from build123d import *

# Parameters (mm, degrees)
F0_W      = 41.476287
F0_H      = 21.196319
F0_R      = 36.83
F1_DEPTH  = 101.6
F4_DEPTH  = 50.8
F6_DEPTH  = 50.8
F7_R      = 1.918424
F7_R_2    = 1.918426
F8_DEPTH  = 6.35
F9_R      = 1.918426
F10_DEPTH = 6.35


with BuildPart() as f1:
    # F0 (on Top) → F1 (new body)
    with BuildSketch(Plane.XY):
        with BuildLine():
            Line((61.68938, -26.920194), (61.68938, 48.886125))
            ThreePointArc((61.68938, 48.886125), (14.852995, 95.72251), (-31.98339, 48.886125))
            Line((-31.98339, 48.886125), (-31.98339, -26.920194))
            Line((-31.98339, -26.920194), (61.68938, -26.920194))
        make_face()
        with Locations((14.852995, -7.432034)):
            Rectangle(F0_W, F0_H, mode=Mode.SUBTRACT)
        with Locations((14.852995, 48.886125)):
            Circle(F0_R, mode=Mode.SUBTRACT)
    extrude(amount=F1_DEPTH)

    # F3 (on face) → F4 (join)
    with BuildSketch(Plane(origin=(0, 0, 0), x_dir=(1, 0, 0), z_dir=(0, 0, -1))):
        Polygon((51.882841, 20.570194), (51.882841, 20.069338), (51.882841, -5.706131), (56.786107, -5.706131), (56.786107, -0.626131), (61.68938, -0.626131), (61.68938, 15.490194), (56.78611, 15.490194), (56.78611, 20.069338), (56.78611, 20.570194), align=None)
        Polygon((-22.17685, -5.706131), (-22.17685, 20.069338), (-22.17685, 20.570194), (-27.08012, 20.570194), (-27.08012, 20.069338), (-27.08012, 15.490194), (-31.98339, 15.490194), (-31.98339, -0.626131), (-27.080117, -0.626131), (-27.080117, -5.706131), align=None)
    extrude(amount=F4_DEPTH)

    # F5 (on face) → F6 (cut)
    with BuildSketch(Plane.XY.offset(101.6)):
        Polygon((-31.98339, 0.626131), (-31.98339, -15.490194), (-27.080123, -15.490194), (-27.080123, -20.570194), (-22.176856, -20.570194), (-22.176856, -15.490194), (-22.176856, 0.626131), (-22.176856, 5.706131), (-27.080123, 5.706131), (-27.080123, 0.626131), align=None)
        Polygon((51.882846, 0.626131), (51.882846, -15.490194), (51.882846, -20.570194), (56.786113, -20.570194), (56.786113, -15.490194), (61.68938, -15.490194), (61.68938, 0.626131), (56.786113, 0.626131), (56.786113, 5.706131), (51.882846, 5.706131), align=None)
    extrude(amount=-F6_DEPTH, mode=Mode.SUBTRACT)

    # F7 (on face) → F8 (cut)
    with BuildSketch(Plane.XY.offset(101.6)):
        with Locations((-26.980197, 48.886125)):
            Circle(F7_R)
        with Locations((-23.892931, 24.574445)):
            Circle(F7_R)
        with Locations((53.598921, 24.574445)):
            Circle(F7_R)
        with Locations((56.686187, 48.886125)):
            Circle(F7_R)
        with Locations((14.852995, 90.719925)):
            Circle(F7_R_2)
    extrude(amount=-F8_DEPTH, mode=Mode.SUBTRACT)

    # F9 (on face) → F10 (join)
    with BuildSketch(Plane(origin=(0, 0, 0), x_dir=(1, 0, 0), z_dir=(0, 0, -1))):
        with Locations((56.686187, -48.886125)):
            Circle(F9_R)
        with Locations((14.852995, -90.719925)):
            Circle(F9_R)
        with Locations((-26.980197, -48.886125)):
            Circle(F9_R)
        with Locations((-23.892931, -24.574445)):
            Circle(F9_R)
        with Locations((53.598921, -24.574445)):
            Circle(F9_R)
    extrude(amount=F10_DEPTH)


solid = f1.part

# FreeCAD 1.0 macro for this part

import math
import FreeCAD as App
import Part
import Sketcher
Q = App.Units.Quantity


def add_polygon(sketch, points):
    """Adds a closed chain of lines whose ends are joined by coincident constraints."""
    first, n = sketch.GeometryCount, len(points)
    for a, b in zip(points, points[1:] + points[:1]):
        sketch.addGeometry(Part.LineSegment(App.Vector(*a, 0), App.Vector(*b, 0)), False)
    for i in range(n):
        sketch.addConstraint(Sketcher.Constraint("Coincident", first + i, 2, first + (i + 1) % n, 1))

doc = App.newDocument("Part")
body = doc.addObject("PartDesign::Body", "Body")

# Sketch on XY plane
sketch1 = body.newObject("Sketcher::SketchObject", "Sketch")
sketch1.AttachmentSupport = (doc.getObject("XY_Plane"), [""])
sketch1.MapMode = "FlatFace"
sketch1.addGeometry(Part.LineSegment(App.Vector(62, -27, 0), App.Vector(62, 49, 0)), False)  # 0
sketch1.addGeometry(Part.ArcOfCircle(Part.Circle(App.Vector(15, 49, 0), App.Vector(0, 0, 1), 47), math.radians(0), math.radians(180)), False)  # 1
sketch1.addGeometry(Part.LineSegment(App.Vector(-32, 49, 0), App.Vector(-32, -27, 0)), False)  # 2
sketch1.addGeometry(Part.LineSegment(App.Vector(-32, -27, 0), App.Vector(62, -27, 0)), False)  # 3
add_polygon(sketch1, [(36, -18), (-6, -18), (-6, 3), (36, 3)])  # lines 4-7
sketch1.addGeometry(Part.Circle(App.Vector(15, 49, 0), App.Vector(0, 0, 1), 37), False)  # 8
sketch1.addConstraint(Sketcher.Constraint("Tangent", 0, 2, 1, 1))
sketch1.addConstraint(Sketcher.Constraint("Tangent", 1, 2, 2, 1))
sketch1.addConstraint(Sketcher.Constraint("Coincident", 2, 2, 3, 1))
sketch1.addConstraint(Sketcher.Constraint("Coincident", 3, 2, 0, 1))
sketch1.addConstraint(Sketcher.Constraint("Vertical", 0))
sketch1.addConstraint(Sketcher.Constraint("Vertical", 2))
sketch1.addConstraint(Sketcher.Constraint("Horizontal", 3))
sketch1.addConstraint(Sketcher.Constraint("Horizontal", 4))
sketch1.addConstraint(Sketcher.Constraint("Vertical", 5))
sketch1.addConstraint(Sketcher.Constraint("Horizontal", 6))
sketch1.addConstraint(Sketcher.Constraint("Vertical", 7))
sketch1.addConstraint(Sketcher.Constraint("Coincident", 8, 3, 1, 3))
sketch1.addConstraint(Sketcher.Constraint("Diameter", 8, Q("2.9 in")))
sketch1.addConstraint(Sketcher.Constraint("DistanceY", 5, 2, 1, 3, Q("1.8 in")))
sketch1.addConstraint(Sketcher.Constraint("DistanceY", 2, 2, 4, 2, Q("0.35 in")))
sketch1.addConstraint(Sketcher.Constraint("Radius", 1, Q("46.836385 mm")))
sketch1.addConstraint(Sketcher.Constraint("DistanceY", 0, 1, 0, 2, Q("75.806319 mm")))
sketch1.addConstraint(Sketcher.Constraint("DistanceX", 4, 2, 4, 1, Q("41.476287 mm")))
sketch1.addConstraint(Sketcher.Constraint("DistanceX", -1, 1, 0, 2, Q("61.68938 mm")))
sketch1.addConstraint(Sketcher.Constraint("DistanceX", 4, 2, -1, 1, Q("5.885148 mm")))
sketch1.addConstraint(Sketcher.Constraint("DistanceY", -1, 1, 1, 3, Q("48.886125 mm")))
pad1 = body.newObject("PartDesign::Pad", "Pad")
pad1.Profile = sketch1
pad1.Length = Q("4 in")

# Sketch on XY plane
sketch2 = body.newObject("Sketcher::SketchObject", "Sketch001")
sketch2.AttachmentSupport = (doc.getObject("XY_Plane"), [""])
sketch2.MapMode = "FlatFace"
add_polygon(sketch2, [(51.9, -20.6), (51.9, 5.7), (56.8, 5.7), (56.8, 0.6), (61.7, 0.6), (61.7, -15.5), (56.8, -15.5), (56.8, -20.6)])  # lines 0-7
add_polygon(sketch2, [(-22.2, 5.7), (-22.2, -20.6), (-27.1, -20.6), (-27.1, -15.5), (-32, -15.5), (-32, 0.6), (-27.1, 0.6), (-27.1, 5.7)])  # lines 8-15
sketch2.addConstraint(Sketcher.Constraint("Vertical", 0))
sketch2.addConstraint(Sketcher.Constraint("Horizontal", 1))
sketch2.addConstraint(Sketcher.Constraint("Vertical", 2))
sketch2.addConstraint(Sketcher.Constraint("Horizontal", 3))
sketch2.addConstraint(Sketcher.Constraint("Vertical", 4))
sketch2.addConstraint(Sketcher.Constraint("Horizontal", 5))
sketch2.addConstraint(Sketcher.Constraint("Vertical", 6))
sketch2.addConstraint(Sketcher.Constraint("Horizontal", 7))
sketch2.addConstraint(Sketcher.Constraint("Vertical", 8))
sketch2.addConstraint(Sketcher.Constraint("Horizontal", 9))
sketch2.addConstraint(Sketcher.Constraint("Vertical", 10))
sketch2.addConstraint(Sketcher.Constraint("Horizontal", 11))
sketch2.addConstraint(Sketcher.Constraint("Vertical", 12))
sketch2.addConstraint(Sketcher.Constraint("Horizontal", 13))
sketch2.addConstraint(Sketcher.Constraint("Vertical", 14))
sketch2.addConstraint(Sketcher.Constraint("Horizontal", 15))
sketch2.addConstraint(Sketcher.Constraint("Horizontal", 7, 2, 8, 2))
sketch2.addConstraint(Sketcher.Constraint("Horizontal", 5, 2, 10, 2))
sketch2.addConstraint(Sketcher.Constraint("Horizontal", 3, 2, 12, 2))
sketch2.addConstraint(Sketcher.Constraint("Horizontal", 1, 2, 14, 2))
sketch2.addConstraint(Sketcher.Constraint("Equal", 5, 7))
sketch2.addConstraint(Sketcher.Constraint("Equal", 7, 9))
sketch2.addConstraint(Sketcher.Constraint("Equal", 9, 11))
sketch2.addConstraint(Sketcher.Constraint("Equal", 3, 13))
sketch2.addConstraint(Sketcher.Constraint("Equal", 2, 6))
sketch2.addConstraint(Sketcher.Constraint("DistanceY", 2, 2, 2, 1, Q("0.2 in")))
sketch2.addConstraint(Sketcher.Constraint("DistanceX", 5, 2, 5, 1, Q("4.90327 mm")))
sketch2.addConstraint(Sketcher.Constraint("DistanceX", 1, 1, 1, 2, Q("4.903266 mm")))
sketch2.addConstraint(Sketcher.Constraint("DistanceY", 0, 1, 0, 2, Q("26.276325 mm")))
sketch2.addConstraint(Sketcher.Constraint("DistanceX", -1, 1, 0, 2, Q("51.882841 mm")))
sketch2.addConstraint(Sketcher.Constraint("DistanceY", -1, 1, 0, 2, Q("5.706131 mm")))
sketch2.addConstraint(Sketcher.Constraint("DistanceX", 8, 2, -1, 1, Q("22.17685 mm")))
pad2 = body.newObject("PartDesign::Pad", "Pad001")
pad2.Profile = sketch2
pad2.Length = Q("2 in")
pad2.Reversed = True

# Sketch on XY plane
sketch3 = body.newObject("Sketcher::SketchObject", "Sketch002")
sketch3.AttachmentSupport = (doc.getObject("XY_Plane"), [""])
sketch3.MapMode = "FlatFace"
sketch3.AttachmentOffset = App.Placement(App.Vector(0, 0, 4 * 25.4), App.Rotation())
add_polygon(sketch3, [(-32, 0.6), (-32, -15.5), (-27.1, -15.5), (-27.1, -20.6), (-22.2, -20.6), (-22.2, 5.7), (-27.1, 5.7), (-27.1, 0.6)])  # lines 0-7
add_polygon(sketch3, [(51.9, -20.6), (56.8, -20.6), (56.8, -15.5), (61.7, -15.5), (61.7, 0.6), (56.8, 0.6), (56.8, 5.7), (51.9, 5.7)])  # lines 8-15
sketch3.addConstraint(Sketcher.Constraint("Vertical", 0))
sketch3.addConstraint(Sketcher.Constraint("Horizontal", 1))
sketch3.addConstraint(Sketcher.Constraint("Vertical", 2))
sketch3.addConstraint(Sketcher.Constraint("Horizontal", 3))
sketch3.addConstraint(Sketcher.Constraint("Vertical", 4))
sketch3.addConstraint(Sketcher.Constraint("Horizontal", 5))
sketch3.addConstraint(Sketcher.Constraint("Vertical", 6))
sketch3.addConstraint(Sketcher.Constraint("Horizontal", 7))
sketch3.addConstraint(Sketcher.Constraint("Horizontal", 8))
sketch3.addConstraint(Sketcher.Constraint("Vertical", 9))
sketch3.addConstraint(Sketcher.Constraint("Horizontal", 10))
sketch3.addConstraint(Sketcher.Constraint("Vertical", 11))
sketch3.addConstraint(Sketcher.Constraint("Horizontal", 12))
sketch3.addConstraint(Sketcher.Constraint("Vertical", 13))
sketch3.addConstraint(Sketcher.Constraint("Horizontal", 14))
sketch3.addConstraint(Sketcher.Constraint("Vertical", 15))
sketch3.addConstraint(Sketcher.Constraint("Horizontal", 3, 2, 8, 2))
sketch3.addConstraint(Sketcher.Constraint("Horizontal", 1, 2, 9, 2))
sketch3.addConstraint(Sketcher.Constraint("Horizontal", 7, 2, 11, 2))
sketch3.addConstraint(Sketcher.Constraint("Horizontal", 5, 2, 13, 2))
sketch3.addConstraint(Sketcher.Constraint("Vertical", 2, 2, 5, 2))
sketch3.addConstraint(Sketcher.Constraint("Vertical", 9, 2, 12, 2))
sketch3.addConstraint(Sketcher.Constraint("Equal", 1, 3))
sketch3.addConstraint(Sketcher.Constraint("Equal", 7, 8))
sketch3.addConstraint(Sketcher.Constraint("Equal", 8, 10))
sketch3.addConstraint(Sketcher.Constraint("Equal", 2, 6))
sketch3.addConstraint(Sketcher.Constraint("DistanceY", 2, 2, 2, 1, Q("0.2 in")))
sketch3.addConstraint(Sketcher.Constraint("DistanceX", 1, 1, 1, 2, Q("4.903267 mm")))
sketch3.addConstraint(Sketcher.Constraint("DistanceY", 0, 2, 0, 1, Q("16.116325 mm")))
sketch3.addConstraint(Sketcher.Constraint("DistanceX", 0, 2, -1, 1, Q("31.98339 mm")))
sketch3.addConstraint(Sketcher.Constraint("DistanceY", -1, 1, 4, 2, Q("5.706131 mm")))
sketch3.addConstraint(Sketcher.Constraint("DistanceX", -1, 1, 10, 2, Q("61.68938 mm")))
pocket1 = body.newObject("PartDesign::Pocket", "Pocket")
pocket1.Profile = sketch3
pocket1.Length = Q("2 in")

# Sketch on XY plane
sketch4 = body.newObject("Sketcher::SketchObject", "Sketch003")
sketch4.AttachmentSupport = (doc.getObject("XY_Plane"), [""])
sketch4.MapMode = "FlatFace"
sketch4.AttachmentOffset = App.Placement(App.Vector(0, 0, 4 * 25.4), App.Rotation())
sketch4.addGeometry(Part.Circle(App.Vector(-27, 48.9, 0), App.Vector(0, 0, 1), 1.9), False)
sketch4.addGeometry(Part.Circle(App.Vector(-23.9, 24.6, 0), App.Vector(0, 0, 1), 1.9), False)
sketch4.addGeometry(Part.Circle(App.Vector(53.6, 24.6, 0), App.Vector(0, 0, 1), 1.9), False)
sketch4.addGeometry(Part.Circle(App.Vector(56.7, 48.9, 0), App.Vector(0, 0, 1), 1.9), False)
sketch4.addGeometry(Part.Circle(App.Vector(14.9, 90.7, 0), App.Vector(0, 0, 1), 1.9), False)
sketch4.addConstraint(Sketcher.Constraint("Equal", 0, 1))
sketch4.addConstraint(Sketcher.Constraint("Equal", 1, 2))
sketch4.addConstraint(Sketcher.Constraint("Equal", 2, 3))
sketch4.addConstraint(Sketcher.Constraint("Horizontal", 1, 3, 2, 3))
sketch4.addConstraint(Sketcher.Constraint("Horizontal", 0, 3, 3, 3))
sketch4.addConstraint(Sketcher.Constraint("Diameter", 4, Q("3.836852 mm")))
sketch4.addConstraint(Sketcher.Constraint("DistanceY", 0, 3, 4, 3, Q("1.647 in")))
sketch4.addConstraint(Sketcher.Constraint("Diameter", 0, Q("3.836848 mm")))
sketch4.addConstraint(Sketcher.Constraint("DistanceX", 1, 3, -1, 1, Q("23.892931 mm")))
sketch4.addConstraint(Sketcher.Constraint("DistanceX", -1, 1, 2, 3, Q("53.598921 mm")))
sketch4.addConstraint(Sketcher.Constraint("DistanceY", 1, 3, 0, 3, Q("24.31168 mm")))
sketch4.addConstraint(Sketcher.Constraint("DistanceX", 0, 3, 4, 3, Q("41.833192 mm")))
sketch4.addConstraint(Sketcher.Constraint("DistanceX", 4, 3, 3, 3, Q("41.833192 mm")))
sketch4.addConstraint(Sketcher.Constraint("DistanceX", 0, 3, -1, 1, Q("26.980197 mm")))
sketch4.addConstraint(Sketcher.Constraint("DistanceY", -1, 1, 0, 3, Q("48.886125 mm")))
pocket2 = body.newObject("PartDesign::Pocket", "Pocket001")
pocket2.Profile = sketch4
pocket2.Length = Q("0.25 in")

# Sketch on XY plane
sketch5 = body.newObject("Sketcher::SketchObject", "Sketch004")
sketch5.AttachmentSupport = (doc.getObject("XY_Plane"), [""])
sketch5.MapMode = "FlatFace"
sketch5.addGeometry(Part.Circle(App.Vector(56.7, 48.9, 0), App.Vector(0, 0, 1), 1.9), False)
sketch5.addGeometry(Part.Circle(App.Vector(14.9, 90.7, 0), App.Vector(0, 0, 1), 1.9), False)
sketch5.addGeometry(Part.Circle(App.Vector(-27, 48.9, 0), App.Vector(0, 0, 1), 1.9), False)
sketch5.addGeometry(Part.Circle(App.Vector(-23.9, 24.6, 0), App.Vector(0, 0, 1), 1.9), False)
sketch5.addGeometry(Part.Circle(App.Vector(53.6, 24.6, 0), App.Vector(0, 0, 1), 1.9), False)
sketch5.addConstraint(Sketcher.Constraint("Equal", 0, 1))
sketch5.addConstraint(Sketcher.Constraint("Equal", 1, 2))
sketch5.addConstraint(Sketcher.Constraint("Equal", 2, 3))
sketch5.addConstraint(Sketcher.Constraint("Equal", 3, 4))
sketch5.addConstraint(Sketcher.Constraint("Horizontal", 0, 3, 2, 3))
sketch5.addConstraint(Sketcher.Constraint("Horizontal", 3, 3, 4, 3))
sketch5.addConstraint(Sketcher.Constraint("Diameter", 0, Q("3.836852 mm")))
sketch5.addConstraint(Sketcher.Constraint("DistanceY", 0, 3, 1, 3, Q("1.647 in")))
sketch5.addConstraint(Sketcher.Constraint("DistanceX", 3, 3, -1, 1, Q("23.892931 mm")))
sketch5.addConstraint(Sketcher.Constraint("DistanceX", -1, 1, 4, 3, Q("53.598921 mm")))
sketch5.addConstraint(Sketcher.Constraint("DistanceX", 1, 3, 0, 3, Q("41.833192 mm")))
sketch5.addConstraint(Sketcher.Constraint("DistanceX", 2, 3, 1, 3, Q("41.833192 mm")))
sketch5.addConstraint(Sketcher.Constraint("DistanceY", 3, 3, 2, 3, Q("24.31168 mm")))
sketch5.addConstraint(Sketcher.Constraint("DistanceX", -1, 1, 0, 3, Q("56.686187 mm")))
sketch5.addConstraint(Sketcher.Constraint("DistanceY", -1, 1, 0, 3, Q("48.886125 mm")))
pad3 = body.newObject("PartDesign::Pad", "Pad002")
pad3.Profile = sketch5
pad3.Length = Q("0.25 in")
pad3.Reversed = True

doc.recompute()
